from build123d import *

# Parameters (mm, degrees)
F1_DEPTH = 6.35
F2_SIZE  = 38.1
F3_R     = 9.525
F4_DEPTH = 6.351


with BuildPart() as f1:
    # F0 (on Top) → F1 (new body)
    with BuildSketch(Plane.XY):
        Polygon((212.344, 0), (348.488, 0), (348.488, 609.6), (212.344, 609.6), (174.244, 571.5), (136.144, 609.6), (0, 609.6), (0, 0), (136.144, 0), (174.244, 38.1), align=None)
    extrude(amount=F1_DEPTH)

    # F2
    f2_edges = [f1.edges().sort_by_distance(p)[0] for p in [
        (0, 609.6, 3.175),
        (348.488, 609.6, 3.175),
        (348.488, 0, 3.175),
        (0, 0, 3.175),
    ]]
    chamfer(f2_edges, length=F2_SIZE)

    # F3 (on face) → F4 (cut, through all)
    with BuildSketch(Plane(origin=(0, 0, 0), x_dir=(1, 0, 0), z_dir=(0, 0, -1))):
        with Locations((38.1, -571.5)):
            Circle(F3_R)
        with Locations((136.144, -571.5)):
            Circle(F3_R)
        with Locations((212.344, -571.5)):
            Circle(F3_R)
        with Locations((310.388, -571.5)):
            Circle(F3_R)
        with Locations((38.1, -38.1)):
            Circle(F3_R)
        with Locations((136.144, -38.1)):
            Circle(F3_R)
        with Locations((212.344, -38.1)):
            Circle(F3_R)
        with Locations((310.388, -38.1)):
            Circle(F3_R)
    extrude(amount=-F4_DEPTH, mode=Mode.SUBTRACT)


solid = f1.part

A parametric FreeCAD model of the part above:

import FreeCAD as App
import Part
import Sketcher

V = App.Vector
Q = App.Units.Quantity


def edges_at(feature, points):
    """Names of the edges that pass closest to the given points."""
    edges = feature.Shape.Edges
    near = lambda p: min(range(len(edges)), key=lambda i: edges[i].distToShape(Part.Vertex(*p))[0])
    return sorted({f"Edge{near(p) + 1}" for p in points})

doc = App.newDocument("Part")
body = doc.addObject("PartDesign::Body", "Body")

sketch1 = doc.addObject("Sketcher::SketchObject", "Sketch")
body.addObject(sketch1)
sketch1.AttachmentSupport = (doc.XY_Plane, [""])
sketch1.MapMode = "FlatFace"
sketch1.addGeometry(Part.LineSegment(V(212, 0, 0), V(348, 0, 0)), False)
sketch1.addGeometry(Part.LineSegment(V(348, 0, 0), V(348, 610, 0)), False)
sketch1.addGeometry(Part.LineSegment(V(348, 610, 0), V(212, 610, 0)), False)
sketch1.addGeometry(Part.LineSegment(V(212, 610, 0), V(174, 572, 0)), False)
sketch1.addGeometry(Part.LineSegment(V(174, 572, 0), V(136, 610, 0)), False)
sketch1.addGeometry(Part.LineSegment(V(136, 610, 0), V(0, 610, 0)), False)
sketch1.addGeometry(Part.LineSegment(V(0, 610, 0), V(0, 0, 0)), False)
sketch1.addGeometry(Part.LineSegment(V(0, 0, 0), V(136, 0, 0)), False)
sketch1.addGeometry(Part.LineSegment(V(136, 0, 0), V(174, 38, 0)), False)
sketch1.addGeometry(Part.LineSegment(V(174, 38, 0), V(212, 0, 0)), False)
sketch1.addConstraint(Sketcher.Constraint("Coincident", 0, 2, 1, 1))
sketch1.addConstraint(Sketcher.Constraint("Coincident", 1, 2, 2, 1))
sketch1.addConstraint(Sketcher.Constraint("Coincident", 2, 2, 3, 1))
sketch1.addConstraint(Sketcher.Constraint("Coincident", 3, 2, 4, 1))
sketch1.addConstraint(Sketcher.Constraint("Coincident", 4, 2, 5, 1))
sketch1.addConstraint(Sketcher.Constraint("Coincident", 5, 2, 6, 1))
sketch1.addConstraint(Sketcher.Constraint("Coincident", 6, 2, 7, 1))
sketch1.addConstraint(Sketcher.Constraint("Coincident", 7, 2, 8, 1))
sketch1.addConstraint(Sketcher.Constraint("Coincident", 8, 2, 9, 1))
sketch1.addConstraint(Sketcher.Constraint("Coincident", 9, 2, 0, 1))
sketch1.addConstraint(Sketcher.Constraint("Horizontal", 0))
sketch1.addConstraint(Sketcher.Constraint("Vertical", 1))
sketch1.addConstraint(Sketcher.Constraint("Horizontal", 2))
sketch1.addConstraint(Sketcher.Constraint("Horizontal", 5))
sketch1.addConstraint(Sketcher.Constraint("Vertical", 6))
sketch1.addConstraint(Sketcher.Constraint("Horizontal", 7))
sketch1.addConstraint(Sketcher.Constraint("Coincident", 6, 2, -1, 1))
sketch1.addConstraint(Sketcher.Constraint("PointOnObject", 0, 2, -1))
sketch1.addConstraint(Sketcher.Constraint("Perpendicular", 3, 4))
sketch1.addConstraint(Sketcher.Constraint("Perpendicular", 4, 8))
sketch1.addConstraint(Sketcher.Constraint("Perpendicular", 8, 9))
sketch1.addConstraint(Sketcher.Constraint("Horizontal", 2, 2, 4, 2))
sketch1.addConstraint(Sketcher.Constraint("Vertical", 4, 2, 7, 2))
sketch1.addConstraint(Sketcher.Constraint("Vertical", 3, 2, 8, 2))
sketch1.addConstraint(Sketcher.Constraint("Vertical", 2, 2, 9, 2))
sketch1.addConstraint(Sketcher.Constraint("Equal", 2, 5))
sketch1.addConstraint(Sketcher.Constraint("DistanceY", 1, 1, 1, 2, Q("24 in")))
sketch1.addConstraint(Sketcher.Constraint("DistanceX", 4, 2, 2, 2, Q("3 in")))
sketch1.addConstraint(Sketcher.Constraint("DistanceX", 0, 1, 0, 2, Q("5.36 in")))
pad1 = doc.addObject("PartDesign::Pad", "Pad")
body.addObject(pad1)
pad1.Profile = sketch1
pad1.Length = Q("0.25 in")
doc.recompute()

chamfer = doc.addObject("PartDesign::Chamfer", "Chamfer")
body.addObject(chamfer)
chamfer.Base = (pad1, edges_at(pad1, [
    (0, 609.6, 3.175),
    (348.488, 609.6, 3.175),
    (348.488, 0, 3.175),
    (0, 0, 3.175),
]))
chamfer.Size = Q("1.5 in")

sketch2 = doc.addObject("Sketcher::SketchObject", "Sketch001")
body.addObject(sketch2)
sketch2.AttachmentSupport = (doc.XY_Plane, [""])
sketch2.MapMode = "FlatFace"
sketch2.addGeometry(Part.Circle(V(38, 572, 0), V(0, 0, 1), 10), False)
sketch2.addGeometry(Part.Circle(V(136, 572, 0), V(0, 0, 1), 10), False)
sketch2.addGeometry(Part.Circle(V(212, 572, 0), V(0, 0, 1), 10), False)
sketch2.addGeometry(Part.Circle(V(310, 572, 0), V(0, 0, 1), 10), False)
sketch2.addGeometry(Part.Circle(V(38, 38, 0), V(0, 0, 1), 10), False)
sketch2.addGeometry(Part.Circle(V(136, 38, 0), V(0, 0, 1), 10), False)
sketch2.addGeometry(Part.Circle(V(212, 38, 0), V(0, 0, 1), 10), False)
sketch2.addGeometry(Part.Circle(V(310, 38, 0), V(0, 0, 1), 10), False)
sketch2.addConstraint(Sketcher.Constraint("Equal", 0, 1))
sketch2.addConstraint(Sketcher.Constraint("Equal", 1, 2))
sketch2.addConstraint(Sketcher.Constraint("Equal", 2, 3))
sketch2.addConstraint(Sketcher.Constraint("Equal", 3, 4))
sketch2.addConstraint(Sketcher.Constraint("Equal", 4, 5))
sketch2.addConstraint(Sketcher.Constraint("Equal", 5, 6))
sketch2.addConstraint(Sketcher.Constraint("Equal", 6, 7))
sketch2.addConstraint(Sketcher.Constraint("Horizontal", 0, 3, 1, 3))
sketch2.addConstraint(Sketcher.Constraint("Horizontal", 1, 3, 2, 3))
sketch2.addConstraint(Sketcher.Constraint("Horizontal", 2, 3, 3, 3))
sketch2.addConstraint(Sketcher.Constraint("Horizontal", 4, 3, 5, 3))
sketch2.addConstraint(Sketcher.Constraint("Horizontal", 5, 3, 6, 3))
sketch2.addConstraint(Sketcher.Constraint("Horizontal", 6, 3, 7, 3))
sketch2.addConstraint(Sketcher.Constraint("Vertical", 0, 3, 4, 3))
sketch2.addConstraint(Sketcher.Constraint("Vertical", 1, 3, 5, 3))
sketch2.addConstraint(Sketcher.Constraint("Vertical", 2, 3, 6, 3))
sketch2.addConstraint(Sketcher.Constraint("Vertical", 3, 3, 7, 3))
sketch2.addConstraint(Sketcher.Constraint("Diameter", 0, Q("0.75 in")))
sketch2.addConstraint(Sketcher.Constraint("DistanceX", 1, 3, 2, 3, Q("3 in")))
sketch2.addConstraint(Sketcher.Constraint("DistanceY", 4, 3, 0, 3, Q("21 in")))
sketch2.addConstraint(Sketcher.Constraint("DistanceX", -1, 1, 0, 3, Q("1.5 in")))
sketch2.addConstraint(Sketcher.Constraint("DistanceY", -1, 1, 0, 3, Q("22.5 in")))
sketch2.addConstraint(Sketcher.Constraint("DistanceX", -1, 1, 1, 3, Q("5.36 in")))
sketch2.addConstraint(Sketcher.Constraint("DistanceX", -1, 1, 3, 3, Q("12.22 in")))
pocket1 = doc.addObject("PartDesign::Pocket", "Pocket")
body.addObject(pocket1)
pocket1.Profile = sketch2
pocket1.Type = "ThroughAll"
pocket1.Reversed = True

doc.recompute()
